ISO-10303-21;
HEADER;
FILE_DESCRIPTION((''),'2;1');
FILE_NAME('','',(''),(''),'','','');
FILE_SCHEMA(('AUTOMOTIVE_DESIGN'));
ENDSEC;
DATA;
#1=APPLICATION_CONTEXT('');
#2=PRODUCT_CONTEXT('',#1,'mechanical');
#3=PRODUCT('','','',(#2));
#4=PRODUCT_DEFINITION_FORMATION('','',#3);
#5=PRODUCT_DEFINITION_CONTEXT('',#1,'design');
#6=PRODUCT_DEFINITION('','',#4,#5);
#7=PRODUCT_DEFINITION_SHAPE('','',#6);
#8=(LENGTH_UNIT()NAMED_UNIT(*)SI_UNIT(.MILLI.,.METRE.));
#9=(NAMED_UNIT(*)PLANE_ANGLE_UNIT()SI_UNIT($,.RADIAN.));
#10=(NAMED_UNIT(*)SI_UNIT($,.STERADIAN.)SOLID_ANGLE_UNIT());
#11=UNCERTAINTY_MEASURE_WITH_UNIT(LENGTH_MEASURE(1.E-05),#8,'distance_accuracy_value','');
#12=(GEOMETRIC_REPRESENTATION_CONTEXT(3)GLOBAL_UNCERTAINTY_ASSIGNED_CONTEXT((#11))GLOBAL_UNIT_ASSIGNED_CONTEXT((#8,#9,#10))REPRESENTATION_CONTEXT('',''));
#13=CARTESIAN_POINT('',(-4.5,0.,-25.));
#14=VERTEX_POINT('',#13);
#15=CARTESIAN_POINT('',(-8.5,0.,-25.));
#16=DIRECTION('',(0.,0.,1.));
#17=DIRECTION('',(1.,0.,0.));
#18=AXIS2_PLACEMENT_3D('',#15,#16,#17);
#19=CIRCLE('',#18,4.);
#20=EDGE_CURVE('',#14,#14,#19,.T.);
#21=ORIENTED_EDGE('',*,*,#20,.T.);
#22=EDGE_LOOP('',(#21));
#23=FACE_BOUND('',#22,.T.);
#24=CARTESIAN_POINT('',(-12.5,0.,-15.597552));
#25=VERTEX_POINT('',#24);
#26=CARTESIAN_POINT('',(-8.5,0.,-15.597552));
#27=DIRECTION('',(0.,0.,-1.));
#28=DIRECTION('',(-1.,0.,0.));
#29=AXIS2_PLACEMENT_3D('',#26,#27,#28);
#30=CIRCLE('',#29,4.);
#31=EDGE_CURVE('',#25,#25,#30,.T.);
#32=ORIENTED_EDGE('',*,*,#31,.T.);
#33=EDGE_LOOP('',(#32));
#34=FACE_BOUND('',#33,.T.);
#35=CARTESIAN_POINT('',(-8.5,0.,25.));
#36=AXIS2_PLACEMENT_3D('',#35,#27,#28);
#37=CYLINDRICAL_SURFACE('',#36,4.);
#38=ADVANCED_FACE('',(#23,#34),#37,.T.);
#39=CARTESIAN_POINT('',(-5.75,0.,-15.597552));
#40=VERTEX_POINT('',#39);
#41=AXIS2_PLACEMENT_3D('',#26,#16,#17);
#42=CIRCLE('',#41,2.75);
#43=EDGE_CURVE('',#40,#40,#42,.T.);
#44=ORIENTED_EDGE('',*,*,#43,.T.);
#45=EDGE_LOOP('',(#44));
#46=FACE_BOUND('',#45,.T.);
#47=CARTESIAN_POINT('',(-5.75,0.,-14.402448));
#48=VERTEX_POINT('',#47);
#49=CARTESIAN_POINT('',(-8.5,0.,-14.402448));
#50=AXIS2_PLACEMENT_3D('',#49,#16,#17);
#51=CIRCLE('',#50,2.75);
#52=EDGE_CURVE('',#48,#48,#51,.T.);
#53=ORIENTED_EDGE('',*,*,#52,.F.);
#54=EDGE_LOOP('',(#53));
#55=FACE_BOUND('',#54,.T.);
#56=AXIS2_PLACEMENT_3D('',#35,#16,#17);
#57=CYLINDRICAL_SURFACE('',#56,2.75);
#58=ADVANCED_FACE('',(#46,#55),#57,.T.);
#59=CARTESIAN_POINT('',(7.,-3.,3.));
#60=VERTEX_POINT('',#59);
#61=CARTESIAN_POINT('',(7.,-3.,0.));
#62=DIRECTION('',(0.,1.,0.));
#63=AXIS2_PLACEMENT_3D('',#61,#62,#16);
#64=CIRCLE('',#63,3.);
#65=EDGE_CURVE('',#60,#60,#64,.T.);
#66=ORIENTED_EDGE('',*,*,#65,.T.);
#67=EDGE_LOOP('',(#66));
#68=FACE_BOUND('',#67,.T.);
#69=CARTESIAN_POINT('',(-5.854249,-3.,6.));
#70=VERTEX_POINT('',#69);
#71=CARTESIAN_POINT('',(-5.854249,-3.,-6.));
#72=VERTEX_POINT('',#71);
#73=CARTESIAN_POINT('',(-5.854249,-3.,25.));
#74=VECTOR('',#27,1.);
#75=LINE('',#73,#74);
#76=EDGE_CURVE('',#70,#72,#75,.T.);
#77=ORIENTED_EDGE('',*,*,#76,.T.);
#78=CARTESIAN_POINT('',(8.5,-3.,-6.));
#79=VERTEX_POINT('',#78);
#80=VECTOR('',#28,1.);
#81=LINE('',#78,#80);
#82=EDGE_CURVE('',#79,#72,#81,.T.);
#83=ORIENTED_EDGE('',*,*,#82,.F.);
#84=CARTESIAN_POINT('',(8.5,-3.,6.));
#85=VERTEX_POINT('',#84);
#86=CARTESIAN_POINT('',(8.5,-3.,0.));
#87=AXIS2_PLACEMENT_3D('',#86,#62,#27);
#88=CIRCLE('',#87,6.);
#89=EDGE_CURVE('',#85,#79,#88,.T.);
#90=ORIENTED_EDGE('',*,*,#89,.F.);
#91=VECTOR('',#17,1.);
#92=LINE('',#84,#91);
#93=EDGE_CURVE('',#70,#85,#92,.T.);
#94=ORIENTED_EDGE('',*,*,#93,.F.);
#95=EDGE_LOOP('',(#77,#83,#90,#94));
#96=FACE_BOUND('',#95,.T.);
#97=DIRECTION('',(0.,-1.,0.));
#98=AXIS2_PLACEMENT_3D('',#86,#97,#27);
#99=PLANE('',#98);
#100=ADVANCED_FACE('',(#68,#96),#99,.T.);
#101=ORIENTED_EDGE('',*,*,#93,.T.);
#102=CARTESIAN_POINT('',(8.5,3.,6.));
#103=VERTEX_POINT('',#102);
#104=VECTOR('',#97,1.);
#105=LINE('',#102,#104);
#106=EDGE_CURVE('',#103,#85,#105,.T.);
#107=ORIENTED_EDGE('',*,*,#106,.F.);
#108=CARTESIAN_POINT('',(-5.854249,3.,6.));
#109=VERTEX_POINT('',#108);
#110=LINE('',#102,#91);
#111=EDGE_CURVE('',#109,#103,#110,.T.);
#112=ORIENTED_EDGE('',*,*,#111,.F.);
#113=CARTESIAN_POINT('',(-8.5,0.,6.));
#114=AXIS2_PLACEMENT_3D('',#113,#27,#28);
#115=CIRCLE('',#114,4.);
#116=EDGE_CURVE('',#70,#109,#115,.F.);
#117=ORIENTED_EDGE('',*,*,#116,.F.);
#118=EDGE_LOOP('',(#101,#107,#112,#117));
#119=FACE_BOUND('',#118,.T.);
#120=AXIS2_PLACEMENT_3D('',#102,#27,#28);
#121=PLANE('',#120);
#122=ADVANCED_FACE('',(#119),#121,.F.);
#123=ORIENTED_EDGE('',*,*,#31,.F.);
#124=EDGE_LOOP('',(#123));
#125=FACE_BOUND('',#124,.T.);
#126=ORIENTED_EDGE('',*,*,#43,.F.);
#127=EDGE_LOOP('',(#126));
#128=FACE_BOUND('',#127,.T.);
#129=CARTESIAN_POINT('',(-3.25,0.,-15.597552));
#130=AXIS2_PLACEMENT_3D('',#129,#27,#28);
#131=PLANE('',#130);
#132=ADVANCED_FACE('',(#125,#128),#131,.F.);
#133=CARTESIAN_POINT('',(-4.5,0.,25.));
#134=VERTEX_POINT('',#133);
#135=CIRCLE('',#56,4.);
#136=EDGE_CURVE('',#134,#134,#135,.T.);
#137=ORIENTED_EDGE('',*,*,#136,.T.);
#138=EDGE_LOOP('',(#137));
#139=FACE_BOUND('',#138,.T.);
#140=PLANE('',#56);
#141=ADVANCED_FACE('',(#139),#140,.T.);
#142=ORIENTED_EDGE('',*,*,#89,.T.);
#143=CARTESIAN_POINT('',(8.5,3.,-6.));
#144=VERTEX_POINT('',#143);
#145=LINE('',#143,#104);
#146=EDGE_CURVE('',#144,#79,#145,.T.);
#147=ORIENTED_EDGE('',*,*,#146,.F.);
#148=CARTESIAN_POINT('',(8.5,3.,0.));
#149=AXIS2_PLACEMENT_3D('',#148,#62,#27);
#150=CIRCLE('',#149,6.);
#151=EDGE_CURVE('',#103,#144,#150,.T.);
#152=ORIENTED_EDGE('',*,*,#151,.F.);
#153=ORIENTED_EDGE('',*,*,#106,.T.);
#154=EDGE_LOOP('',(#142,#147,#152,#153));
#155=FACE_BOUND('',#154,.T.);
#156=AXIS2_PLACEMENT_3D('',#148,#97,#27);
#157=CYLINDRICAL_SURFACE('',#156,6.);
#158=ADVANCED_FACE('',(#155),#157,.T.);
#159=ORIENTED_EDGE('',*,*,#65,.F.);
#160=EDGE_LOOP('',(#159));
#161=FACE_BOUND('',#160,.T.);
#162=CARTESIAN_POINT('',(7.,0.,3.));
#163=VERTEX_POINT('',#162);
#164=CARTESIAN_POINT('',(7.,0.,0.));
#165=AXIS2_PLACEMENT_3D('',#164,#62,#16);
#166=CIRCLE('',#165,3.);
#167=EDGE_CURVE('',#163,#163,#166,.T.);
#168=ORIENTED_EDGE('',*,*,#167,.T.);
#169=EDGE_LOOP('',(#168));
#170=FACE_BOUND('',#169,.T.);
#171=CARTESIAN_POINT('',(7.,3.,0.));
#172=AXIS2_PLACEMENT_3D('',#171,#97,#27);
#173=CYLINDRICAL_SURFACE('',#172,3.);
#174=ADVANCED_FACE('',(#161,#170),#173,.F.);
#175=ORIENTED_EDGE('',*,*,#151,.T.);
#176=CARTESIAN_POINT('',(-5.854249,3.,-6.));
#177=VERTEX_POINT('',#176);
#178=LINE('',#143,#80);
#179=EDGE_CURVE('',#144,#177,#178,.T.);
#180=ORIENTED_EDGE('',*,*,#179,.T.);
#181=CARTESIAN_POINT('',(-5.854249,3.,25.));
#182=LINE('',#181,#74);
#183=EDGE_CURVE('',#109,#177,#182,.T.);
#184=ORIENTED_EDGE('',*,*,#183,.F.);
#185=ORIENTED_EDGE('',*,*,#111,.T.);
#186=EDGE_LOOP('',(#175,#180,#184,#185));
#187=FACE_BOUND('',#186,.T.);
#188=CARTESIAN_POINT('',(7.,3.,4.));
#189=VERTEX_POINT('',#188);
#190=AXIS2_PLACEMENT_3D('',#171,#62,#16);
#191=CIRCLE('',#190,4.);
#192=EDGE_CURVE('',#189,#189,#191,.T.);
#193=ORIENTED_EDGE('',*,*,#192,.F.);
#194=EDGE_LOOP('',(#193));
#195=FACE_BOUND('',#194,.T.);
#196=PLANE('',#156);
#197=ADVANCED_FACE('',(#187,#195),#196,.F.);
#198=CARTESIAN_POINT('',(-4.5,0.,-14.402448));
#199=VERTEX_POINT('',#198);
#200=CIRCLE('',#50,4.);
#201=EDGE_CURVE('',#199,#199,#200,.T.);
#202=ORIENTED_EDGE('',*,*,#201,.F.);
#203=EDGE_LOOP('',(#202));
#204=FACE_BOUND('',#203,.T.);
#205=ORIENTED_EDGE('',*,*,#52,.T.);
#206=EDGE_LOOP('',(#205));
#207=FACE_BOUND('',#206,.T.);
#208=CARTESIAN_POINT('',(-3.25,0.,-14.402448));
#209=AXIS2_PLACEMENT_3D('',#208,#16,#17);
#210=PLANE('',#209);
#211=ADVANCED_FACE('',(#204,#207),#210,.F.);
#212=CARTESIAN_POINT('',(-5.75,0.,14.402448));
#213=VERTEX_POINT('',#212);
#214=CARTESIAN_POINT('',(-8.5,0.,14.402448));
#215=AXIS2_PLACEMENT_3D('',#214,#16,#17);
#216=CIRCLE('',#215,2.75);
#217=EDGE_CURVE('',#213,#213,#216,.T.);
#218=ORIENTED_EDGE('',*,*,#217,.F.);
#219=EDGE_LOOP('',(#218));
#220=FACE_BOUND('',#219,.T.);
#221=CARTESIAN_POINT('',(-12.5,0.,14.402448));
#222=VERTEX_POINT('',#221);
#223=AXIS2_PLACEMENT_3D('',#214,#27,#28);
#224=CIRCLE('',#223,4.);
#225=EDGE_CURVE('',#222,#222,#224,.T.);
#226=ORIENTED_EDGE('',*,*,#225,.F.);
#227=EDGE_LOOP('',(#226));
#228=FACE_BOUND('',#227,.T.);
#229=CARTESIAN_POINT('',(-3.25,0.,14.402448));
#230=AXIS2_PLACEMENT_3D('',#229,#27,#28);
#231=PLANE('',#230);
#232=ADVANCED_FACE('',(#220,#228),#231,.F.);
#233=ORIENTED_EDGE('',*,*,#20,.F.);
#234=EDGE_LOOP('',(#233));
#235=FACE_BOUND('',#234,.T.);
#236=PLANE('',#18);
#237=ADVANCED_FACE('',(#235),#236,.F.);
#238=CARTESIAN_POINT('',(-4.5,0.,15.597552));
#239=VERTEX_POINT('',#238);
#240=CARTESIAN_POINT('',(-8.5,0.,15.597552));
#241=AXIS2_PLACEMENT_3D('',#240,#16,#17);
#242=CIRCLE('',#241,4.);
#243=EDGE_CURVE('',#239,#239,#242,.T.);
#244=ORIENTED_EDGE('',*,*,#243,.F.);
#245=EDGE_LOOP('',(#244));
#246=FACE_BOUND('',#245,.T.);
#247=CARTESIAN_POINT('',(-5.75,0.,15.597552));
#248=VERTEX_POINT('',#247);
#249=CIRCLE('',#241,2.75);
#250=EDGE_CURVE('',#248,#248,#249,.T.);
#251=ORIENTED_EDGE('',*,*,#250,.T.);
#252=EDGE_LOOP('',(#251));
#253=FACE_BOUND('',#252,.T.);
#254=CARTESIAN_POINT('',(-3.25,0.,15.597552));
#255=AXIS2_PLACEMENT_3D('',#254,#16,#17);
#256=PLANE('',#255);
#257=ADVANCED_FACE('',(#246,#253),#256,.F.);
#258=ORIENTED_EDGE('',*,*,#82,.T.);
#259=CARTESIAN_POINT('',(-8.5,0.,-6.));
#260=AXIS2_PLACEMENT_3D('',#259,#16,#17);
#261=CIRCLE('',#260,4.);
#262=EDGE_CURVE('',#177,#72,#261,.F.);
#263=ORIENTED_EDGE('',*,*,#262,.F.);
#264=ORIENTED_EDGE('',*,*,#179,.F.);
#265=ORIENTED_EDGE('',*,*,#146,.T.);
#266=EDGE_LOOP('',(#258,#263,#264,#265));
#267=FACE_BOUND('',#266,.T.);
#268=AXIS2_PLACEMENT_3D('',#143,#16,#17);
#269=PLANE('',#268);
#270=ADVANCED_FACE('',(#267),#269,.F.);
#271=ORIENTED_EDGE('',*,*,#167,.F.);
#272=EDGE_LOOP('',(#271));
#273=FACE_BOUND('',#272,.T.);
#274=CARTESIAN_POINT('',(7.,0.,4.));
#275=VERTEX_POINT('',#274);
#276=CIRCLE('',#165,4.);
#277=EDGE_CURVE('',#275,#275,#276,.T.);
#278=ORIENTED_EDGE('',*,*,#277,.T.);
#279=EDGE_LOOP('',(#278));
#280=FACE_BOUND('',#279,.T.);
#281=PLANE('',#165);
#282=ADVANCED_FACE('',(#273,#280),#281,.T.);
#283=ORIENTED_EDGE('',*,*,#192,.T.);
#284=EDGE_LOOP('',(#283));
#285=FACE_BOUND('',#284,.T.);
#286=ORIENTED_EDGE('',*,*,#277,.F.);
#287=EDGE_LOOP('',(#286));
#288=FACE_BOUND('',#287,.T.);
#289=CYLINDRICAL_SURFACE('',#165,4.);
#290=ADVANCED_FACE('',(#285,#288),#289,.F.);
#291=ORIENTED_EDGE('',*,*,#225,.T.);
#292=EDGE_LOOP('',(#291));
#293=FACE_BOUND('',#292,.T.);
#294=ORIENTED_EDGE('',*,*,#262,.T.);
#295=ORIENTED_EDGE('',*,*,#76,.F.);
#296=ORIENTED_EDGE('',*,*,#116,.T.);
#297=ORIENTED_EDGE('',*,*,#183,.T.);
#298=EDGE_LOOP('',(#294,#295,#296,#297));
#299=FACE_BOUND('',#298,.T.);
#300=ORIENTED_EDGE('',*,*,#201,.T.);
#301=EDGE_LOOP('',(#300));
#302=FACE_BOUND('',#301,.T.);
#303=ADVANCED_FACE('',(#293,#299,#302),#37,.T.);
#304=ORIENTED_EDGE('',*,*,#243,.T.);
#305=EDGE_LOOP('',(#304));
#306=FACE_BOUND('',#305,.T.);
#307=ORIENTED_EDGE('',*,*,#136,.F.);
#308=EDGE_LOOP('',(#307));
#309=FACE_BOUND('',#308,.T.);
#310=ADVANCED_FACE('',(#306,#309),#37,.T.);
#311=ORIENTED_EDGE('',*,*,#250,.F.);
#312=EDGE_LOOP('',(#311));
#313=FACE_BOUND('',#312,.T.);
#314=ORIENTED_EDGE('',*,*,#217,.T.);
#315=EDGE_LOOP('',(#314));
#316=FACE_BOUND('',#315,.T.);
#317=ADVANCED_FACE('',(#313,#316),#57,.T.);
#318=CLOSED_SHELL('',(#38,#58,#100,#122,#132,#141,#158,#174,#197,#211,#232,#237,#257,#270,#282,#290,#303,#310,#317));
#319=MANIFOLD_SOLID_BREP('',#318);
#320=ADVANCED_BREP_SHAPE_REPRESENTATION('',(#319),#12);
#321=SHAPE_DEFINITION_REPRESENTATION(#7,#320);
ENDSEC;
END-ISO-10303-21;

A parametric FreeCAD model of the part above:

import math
import FreeCAD as App
import Part
import Sketcher
from FreeCAD import Vector
Q = App.Units.Quantity


def add_polygon(sketch, points):
    """Adds a closed chain of lines whose ends are joined by coincident constraints."""
    first, n = sketch.GeometryCount, len(points)
    for a, b in zip(points, points[1:] + points[:1]):
        sketch.addGeometry(Part.LineSegment(App.Vector(*a, 0), App.Vector(*b, 0)), False)
    for i in range(n):
        sketch.addConstraint(Sketcher.Constraint("Coincident", first + i, 2, first + (i + 1) % n, 1))

doc = App.newDocument("Part")
body = doc.addObject("PartDesign::Body", "Body")

sketch1 = body.newObject("Sketcher::SketchObject", "Sketch")
sketch1.AttachmentSupport = (doc.getObject("XZ_Plane"), [""])
sketch1.MapMode = "FlatFace"
sketch1.addGeometry([
    Part.LineSegment(Vector(-8.5, 6, 0), Vector(8.5, 6, 0)),
    Part.ArcOfCircle(Part.Circle(Vector(8.5, 0, 0), Vector(0, 0, 1), 6), math.radians(-90), math.radians(90)),
    Part.LineSegment(Vector(8.5, -6, 0), Vector(-8.5, -6, 0)),
    Part.LineSegment(Vector(-8.5, -6, 0), Vector(-8.5, 6, 0)),
    Part.Circle(Vector(7, 0, 0), Vector(0, 0, 1), 3),
], False)
sketch1.addConstraint([
    Sketcher.Constraint("Tangent", 0, 2, 1, 2),
    Sketcher.Constraint("Tangent", 1, 1, 2, 1),
    Sketcher.Constraint("Coincident", 2, 2, 3, 1),
    Sketcher.Constraint("Coincident", 3, 2, 0, 1),
    Sketcher.Constraint("Horizontal", 0),
    Sketcher.Constraint("Horizontal", 2),
    Sketcher.Constraint("Vertical", 3),
    Sketcher.Constraint("Symmetric", 0, 2, 2, 2, -1, 1),
    Sketcher.Constraint("PointOnObject", 4, 3, -1),
    Sketcher.Constraint("Diameter", 4, Q("6 mm")),
    Sketcher.Constraint("Radius", 1, Q("6 mm")),
    Sketcher.Constraint("DistanceX", 0, 1, 0, 2, Q("17 mm")),
    Sketcher.Constraint("DistanceX", -1, 1, 4, 3, Q("7 mm")),
])
pad1 = body.newObject("PartDesign::Pad", "Pad")
pad1.Profile = sketch1
pad1.Length = 6
pad1.Midplane = True

sketch2 = body.newObject("Sketcher::SketchObject", "Sketch001")
sketch2.AttachmentSupport = (doc.getObject("XZ_Plane"), [""])
sketch2.MapMode = "FlatFace"
sketch2.AttachmentOffset = App.Placement(Vector(0, 0, -3), App.Rotation())
sketch2.addGeometry(Part.Circle(Vector(7, 0, 0), Vector(0, 0, 1), 4), False)
sketch2.addConstraint([
    Sketcher.Constraint("PointOnObject", 0, 3, -1),
    Sketcher.Constraint("Diameter", 0, Q("8 mm")),
    Sketcher.Constraint("DistanceX", -1, 1, 0, 3, Q("7 mm")),
])
pocket1 = body.newObject("PartDesign::Pocket", "Pocket")
pocket1.Profile = sketch2
pocket1.Length = 3
pocket1.Reversed = True

sketch3 = body.newObject("Sketcher::SketchObject", "Sketch002")
sketch3.AttachmentSupport = (doc.getObject("XY_Plane"), [""])
sketch3.MapMode = "FlatFace"
sketch3.addGeometry(Part.Circle(Vector(-8.5, 0, 0), Vector(0, 0, 1), 4), False)
sketch3.addConstraint([
    Sketcher.Constraint("PointOnObject", 0, 3, -1),
    Sketcher.Constraint("Diameter", 0, Q("8 mm")),
    Sketcher.Constraint("DistanceX", 0, 3, -1, 1, Q("8.5 mm")),
])
pad2 = body.newObject("PartDesign::Pad", "Pad001")
pad2.Profile = sketch3
pad2.Length = 50
pad2.Midplane = True

sketch4 = body.newObject("Sketcher::SketchObject", "Sketch003")
sketch4.AttachmentSupport = (doc.getObject("XZ_Plane"), [""])
sketch4.MapMode = "FlatFace"
add_polygon(sketch4, [(-5.8, -15.6), (-5.8, -14.4), (-3.2, -14.4), (-3.2, -15.6)])
add_polygon(sketch4, [(-5.8, 14.4), (-5.8, 15.6), (-3.2, 15.6), (-3.2, 14.4)])
sketch4.addGeometry(Part.LineSegment(Vector(-8.5, 15.6, 0), Vector(-8.5, -15.6, 0)), True)
sketch4.addConstraint([
    Sketcher.Constraint("Vertical", 0),
    Sketcher.Constraint("Horizontal", 1),
    Sketcher.Constraint("Vertical", 2),
    Sketcher.Constraint("Horizontal", 3),
    Sketcher.Constraint("Vertical", 4),
    Sketcher.Constraint("Horizontal", 5),
    Sketcher.Constraint("Vertical", 6),
    Sketcher.Constraint("Horizontal", 7),
    Sketcher.Constraint("Vertical", 8),
    Sketcher.Constraint("Symmetric", 3, 2, 4, 2, -1),
    Sketcher.Constraint("Symmetric", 1, 2, 6, 2, -1),
    Sketcher.Constraint("Horizontal", 5, 2, 8, 1),
    Sketcher.Constraint("Horizontal", 3, 2, 8, 2),
    Sketcher.Constraint("DistanceX", 1, 1, 1, 2, Q("2.5 mm")),
    Sketcher.Constraint("DistanceY", 0, 2, 4, 2, Q("30 mm")),
    Sketcher.Constraint("DistanceX", 8, 1, -1, 1, Q("8.5 mm")),
    Sketcher.Constraint("DistanceX", 0, 2, -1, 1, Q("5.75 mm")),
    Sketcher.Constraint("DistanceY", 0, 1, 0, 2, Q("1.195105 mm")),
])
groove = body.newObject("PartDesign::Groove", "Groove")
groove.Profile = sketch4
groove.ReferenceAxis = (sketch4, ["Axis0"])
groove.Angle = 360

doc.recompute()
